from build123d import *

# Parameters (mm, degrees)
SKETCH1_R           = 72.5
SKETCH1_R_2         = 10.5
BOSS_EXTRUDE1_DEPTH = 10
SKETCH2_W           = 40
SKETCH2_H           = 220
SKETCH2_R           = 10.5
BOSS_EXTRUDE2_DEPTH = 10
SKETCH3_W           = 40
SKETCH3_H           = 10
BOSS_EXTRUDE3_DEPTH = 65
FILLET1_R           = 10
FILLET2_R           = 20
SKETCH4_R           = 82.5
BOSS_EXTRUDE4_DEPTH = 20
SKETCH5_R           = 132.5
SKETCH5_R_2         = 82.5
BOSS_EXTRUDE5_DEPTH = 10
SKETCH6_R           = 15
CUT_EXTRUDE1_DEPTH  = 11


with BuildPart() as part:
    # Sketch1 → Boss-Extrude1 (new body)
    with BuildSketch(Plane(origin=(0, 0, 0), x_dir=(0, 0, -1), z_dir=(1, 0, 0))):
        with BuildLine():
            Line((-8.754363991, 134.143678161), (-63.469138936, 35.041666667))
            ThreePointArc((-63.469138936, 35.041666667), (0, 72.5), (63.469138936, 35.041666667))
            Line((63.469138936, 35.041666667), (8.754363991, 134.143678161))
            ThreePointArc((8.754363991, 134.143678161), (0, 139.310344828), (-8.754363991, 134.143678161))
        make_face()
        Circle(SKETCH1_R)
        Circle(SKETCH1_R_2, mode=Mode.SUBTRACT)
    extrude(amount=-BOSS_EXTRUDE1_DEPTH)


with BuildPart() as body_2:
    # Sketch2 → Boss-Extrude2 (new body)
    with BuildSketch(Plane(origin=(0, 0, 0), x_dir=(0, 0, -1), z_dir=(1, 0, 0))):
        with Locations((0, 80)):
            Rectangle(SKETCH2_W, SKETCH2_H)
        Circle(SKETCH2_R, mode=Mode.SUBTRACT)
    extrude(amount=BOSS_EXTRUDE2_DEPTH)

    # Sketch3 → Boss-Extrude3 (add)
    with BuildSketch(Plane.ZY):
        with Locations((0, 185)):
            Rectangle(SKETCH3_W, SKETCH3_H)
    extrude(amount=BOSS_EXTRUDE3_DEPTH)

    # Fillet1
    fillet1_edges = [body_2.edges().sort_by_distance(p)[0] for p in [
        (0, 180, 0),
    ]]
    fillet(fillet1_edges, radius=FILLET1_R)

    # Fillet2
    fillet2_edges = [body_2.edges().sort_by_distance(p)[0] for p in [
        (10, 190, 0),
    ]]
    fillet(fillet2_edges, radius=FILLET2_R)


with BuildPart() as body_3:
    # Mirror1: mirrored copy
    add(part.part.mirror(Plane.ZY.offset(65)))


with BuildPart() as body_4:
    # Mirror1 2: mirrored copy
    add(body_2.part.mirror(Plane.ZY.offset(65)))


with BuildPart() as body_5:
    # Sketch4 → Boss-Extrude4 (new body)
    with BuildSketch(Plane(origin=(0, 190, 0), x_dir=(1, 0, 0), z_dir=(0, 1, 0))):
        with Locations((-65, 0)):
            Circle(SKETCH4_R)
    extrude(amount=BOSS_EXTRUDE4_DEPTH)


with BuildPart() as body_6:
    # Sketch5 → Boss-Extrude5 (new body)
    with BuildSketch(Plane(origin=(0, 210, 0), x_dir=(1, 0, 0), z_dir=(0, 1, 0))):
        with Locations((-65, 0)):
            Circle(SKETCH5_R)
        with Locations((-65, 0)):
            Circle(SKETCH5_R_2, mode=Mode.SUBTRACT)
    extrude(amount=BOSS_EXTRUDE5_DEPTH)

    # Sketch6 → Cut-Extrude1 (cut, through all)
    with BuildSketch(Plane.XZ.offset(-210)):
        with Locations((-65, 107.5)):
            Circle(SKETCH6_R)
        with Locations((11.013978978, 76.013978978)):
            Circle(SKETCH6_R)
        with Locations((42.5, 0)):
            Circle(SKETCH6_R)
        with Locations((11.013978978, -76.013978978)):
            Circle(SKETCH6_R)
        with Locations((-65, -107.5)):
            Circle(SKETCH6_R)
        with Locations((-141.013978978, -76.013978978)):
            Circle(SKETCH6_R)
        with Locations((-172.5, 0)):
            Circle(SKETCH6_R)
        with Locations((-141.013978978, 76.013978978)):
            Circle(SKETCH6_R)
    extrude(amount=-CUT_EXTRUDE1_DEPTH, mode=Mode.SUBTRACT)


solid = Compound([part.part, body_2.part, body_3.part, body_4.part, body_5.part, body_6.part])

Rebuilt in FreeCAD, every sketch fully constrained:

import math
import FreeCAD as App
import Part
import Sketcher
Q = App.Units.Quantity


def edges_at(feature, points):
    """Names of the edges that pass closest to the given points."""
    edges = feature.Shape.Edges
    near = lambda p: min(range(len(edges)), key=lambda i: edges[i].distToShape(Part.Vertex(*p))[0])
    return sorted({f"Edge{near(p) + 1}" for p in points})


def add_polygon(sketch, points):
    """Adds a closed chain of lines whose ends are joined by coincident constraints."""
    first, n = sketch.GeometryCount, len(points)
    for a, b in zip(points, points[1:] + points[:1]):
        sketch.addGeometry(Part.LineSegment(App.Vector(*a, 0), App.Vector(*b, 0)), False)
    for i in range(n):
        sketch.addConstraint(Sketcher.Constraint("Coincident", first + i, 2, first + (i + 1) % n, 1))

doc = App.newDocument("Part")
params = doc.addObject("Spreadsheet::Sheet", "Params")
for row, (alias, value) in enumerate([
    ("sketch1_diameter", "21 mm"),
    ("sketch1_radius", "10 mm"),
    ("sketch1_radius2", "72.5 mm"),
    ("pad1_length", "10 mm"),
    ("sketch2_diameter", "21 mm"),
    ("sketch2_width", "220 mm"),
    ("sketch2_height", "40 mm"),
    ("pad2_length", "10 mm"),
    ("sketch3_width", "10 mm"),
    ("sketch3_height", "40 mm"),
    ("pad3_length", "65 mm"),
    ("fillet_radius", "10 mm"),
    ("fillet2_radius", "20 mm"),
    ("sketch4_diameter", "165 mm"),
    ("pad4_length", "20 mm"),
    ("sketch5_diameter", "265 mm"),
    ("sketch5_diameter2", "165 mm"),
    ("pad5_length", "10 mm"),
    ("sketch6_diameter", "30 mm"),
], start=1):
    params.set(f"A{row}", alias)
    params.set(f"B{row}", "=" + value)
    params.setAlias(f"B{row}", alias)

body = doc.addObject("PartDesign::Body", "Body")

# Sketch on YZ plane
sketch1 = body.newObject("Sketcher::SketchObject", "Sketch")
sketch1.AttachmentSupport = (doc.getObject("YZ_Plane"), [""])
sketch1.MapMode = "FlatFace"
sketch1.addGeometry([
    Part.LineSegment(App.Vector(134, 9, 0), App.Vector(35, 63, 0)),  # 0
    Part.ArcOfCircle(Part.Circle(App.Vector(0, 0, 0), App.Vector(0, 0, 1), 72), math.radians(61), math.radians(299)),  # 1
    Part.LineSegment(App.Vector(35, -63, 0), App.Vector(134, -9, 0)),  # 2
    Part.ArcOfCircle(Part.Circle(App.Vector(129, 0, 0), App.Vector(0, 0, 1), 10), math.radians(-61), math.radians(61)),  # 3
    Part.Circle(App.Vector(0, 0, 0), App.Vector(0, 0, 1), 10),  # 4
], False)
sketch1.addConstraint([
    Sketcher.Constraint("Tangent", 0, 2, 1, 1),
    Sketcher.Constraint("Tangent", 1, 2, 2, 1),
    Sketcher.Constraint("Tangent", 2, 2, 3, 1),
    Sketcher.Constraint("Tangent", 3, 2, 0, 1),
    Sketcher.Constraint("Coincident", 1, 3, -1, 1),
    Sketcher.Constraint("Coincident", 4, 3, -1, 1),
    Sketcher.Constraint("PointOnObject", 3, 3, -1),
    Sketcher.Constraint("Diameter", 4, Q("21 mm")),
    Sketcher.Constraint("Radius", 3, Q("10 mm")),
    Sketcher.Constraint("Radius", 1, Q("72.5 mm")),
    Sketcher.Constraint("DistanceY", -1, 1, 0, 2, Q("63.469139 mm")),
])
sketch1.setExpression("Constraints[7]", "Params.sketch1_diameter")
sketch1.setExpression("Constraints[8]", "Params.sketch1_radius")
sketch1.setExpression("Constraints[9]", "Params.sketch1_radius2")
pad1 = body.newObject("PartDesign::Pad", "Pad")
pad1.Profile = sketch1
pad1.setExpression("Length", "Params.pad1_length")
pad1.Reversed = True
body2 = doc.addObject("PartDesign::Body", "Body001")

# Sketch on YZ plane
sketch2 = body2.newObject("Sketcher::SketchObject", "Sketch001")
sketch2.AttachmentSupport = (doc.getObject("YZ_Plane001"), [""])
sketch2.MapMode = "FlatFace"
add_polygon(sketch2, [(190, 20), (-30, 20), (-30, -20), (190, -20)])  # lines 0-3
sketch2.addGeometry(Part.Circle(App.Vector(0, 0, 0), App.Vector(0, 0, 1), 10), False)  # 4
sketch2.addConstraint([
    Sketcher.Constraint("Horizontal", 0),
    Sketcher.Constraint("Vertical", 1),
    Sketcher.Constraint("Horizontal", 2),
    Sketcher.Constraint("Vertical", 3),
    Sketcher.Constraint("Coincident", 4, 3, -1, 1),
    Sketcher.Constraint("Diameter", 4, Q("21 mm")),
    Sketcher.Constraint("DistanceX", 0, 2, 0, 1, Q("220 mm")),
    Sketcher.Constraint("DistanceY", 1, 2, 1, 1, Q("40 mm")),
    Sketcher.Constraint("DistanceX", 0, 2, -1, 1, Q("30 mm")),
    Sketcher.Constraint("DistanceY", -1, 1, 0, 2, Q("20 mm")),
])
sketch2.setExpression("Constraints[9]", "Params.sketch2_diameter")
sketch2.setExpression("Constraints[10]", "Params.sketch2_width")
sketch2.setExpression("Constraints[11]", "Params.sketch2_height")
pad2 = body2.newObject("PartDesign::Pad", "Pad001")
pad2.Profile = sketch2
pad2.setExpression("Length", "Params.pad2_length")

# Sketch on YZ plane
sketch3 = body2.newObject("Sketcher::SketchObject", "Sketch002")
sketch3.AttachmentSupport = (doc.getObject("YZ_Plane001"), [""])
sketch3.MapMode = "FlatFace"
add_polygon(sketch3, [(190, -20), (180, -20), (180, 20), (190, 20)])  # lines 0-3
sketch3.addConstraint([
    Sketcher.Constraint("Horizontal", 0),
    Sketcher.Constraint("Vertical", 1),
    Sketcher.Constraint("Horizontal", 2),
    Sketcher.Constraint("Vertical", 3),
    Sketcher.Constraint("DistanceX", 0, 2, 0, 1, Q("10 mm")),
    Sketcher.Constraint("DistanceY", 1, 1, 1, 2, Q("40 mm")),
    Sketcher.Constraint("DistanceX", -1, 1, 0, 2, Q("180 mm")),
    Sketcher.Constraint("DistanceY", 0, 2, -1, 1, Q("20 mm")),
])
sketch3.setExpression("Constraints[8]", "Params.sketch3_width")
sketch3.setExpression("Constraints[9]", "Params.sketch3_height")
pad3 = body2.newObject("PartDesign::Pad", "Pad002")
pad3.Profile = sketch3
pad3.setExpression("Length", "Params.pad3_length")
pad3.Reversed = True
doc.recompute()

fillet = body2.newObject("PartDesign::Fillet", "Fillet")
fillet.Base = (pad3, edges_at(pad3, [(0, 180, 0)]))
fillet.setExpression("Radius", "Params.fillet_radius")
doc.recompute()

fillet2 = body2.newObject("PartDesign::Fillet", "Fillet001")
fillet2.Base = (fillet, edges_at(fillet, [(10, 190, 0)]))
fillet2.setExpression("Radius", "Params.fillet2_radius")
body3 = doc.addObject("PartDesign::Body", "Body002")
doc.recompute()

mirroring = doc.addObject("Part::Mirroring", "Mirroring")
mirroring.Source = body
mirroring.Base = App.Vector(-65, 0, 0)
mirroring.Normal = App.Vector(-1, 0, 0)
body3.BaseFeature = mirroring
doc.recompute()
body4 = doc.addObject("PartDesign::Body", "Body003")
doc.recompute()

mirroring2 = doc.addObject("Part::Mirroring", "Mirroring001")
mirroring2.Source = body2
mirroring2.Base = App.Vector(-65, 0, 0)
mirroring2.Normal = App.Vector(-1, 0, 0)
body4.BaseFeature = mirroring2
doc.recompute()
body5 = doc.addObject("PartDesign::Body", "Body004")

# Sketch on XZ plane
sketch4 = body5.newObject("Sketcher::SketchObject", "Sketch003")
sketch4.AttachmentSupport = (doc.getObject("XZ_Plane004"), [""])
sketch4.MapMode = "FlatFace"
sketch4.AttachmentOffset = App.Placement(App.Vector(0, 0, -190), App.Rotation())
sketch4.addGeometry(Part.Circle(App.Vector(-65, 0, 0), App.Vector(0, 0, 1), 82), False)
sketch4.addConstraint([
    Sketcher.Constraint("PointOnObject", 0, 3, -1),
    Sketcher.Constraint("Diameter", 0, Q("165 mm")),
    Sketcher.Constraint("DistanceX", 0, 3, -1, 1, Q("65 mm")),
])
sketch4.setExpression("Constraints[1]", "Params.sketch4_diameter")
pad4 = body5.newObject("PartDesign::Pad", "Pad003")
pad4.Profile = sketch4
pad4.setExpression("Length", "Params.pad4_length")
pad4.Reversed = True
body6 = doc.addObject("PartDesign::Body", "Body005")

# Sketch on XZ plane
sketch5 = body6.newObject("Sketcher::SketchObject", "Sketch004")
sketch5.AttachmentSupport = (doc.getObject("XZ_Plane005"), [""])
sketch5.MapMode = "FlatFace"
sketch5.AttachmentOffset = App.Placement(App.Vector(0, 0, -210), App.Rotation())
sketch5.addGeometry([
    Part.Circle(App.Vector(-65, 0, 0), App.Vector(0, 0, 1), 132),
    Part.Circle(App.Vector(-65, 0, 0), App.Vector(0, 0, 1), 82),
], False)
sketch5.addConstraint([
    Sketcher.Constraint("Coincident", 1, 3, 0, 3),
    Sketcher.Constraint("PointOnObject", 0, 3, -1),
    Sketcher.Constraint("Diameter", 0, Q("265 mm")),
    Sketcher.Constraint("Diameter", 1, Q("165 mm")),
    Sketcher.Constraint("DistanceX", 0, 3, -1, 1, Q("65 mm")),
])
sketch5.setExpression("Constraints[2]", "Params.sketch5_diameter")
sketch5.setExpression("Constraints[3]", "Params.sketch5_diameter2")
pad5 = body6.newObject("PartDesign::Pad", "Pad004")
pad5.Profile = sketch5
pad5.setExpression("Length", "Params.pad5_length")
pad5.Reversed = True

# Sketch on XZ plane
sketch6 = body6.newObject("Sketcher::SketchObject", "Sketch005")
sketch6.AttachmentSupport = (doc.getObject("XZ_Plane005"), [""])
sketch6.MapMode = "FlatFace"
sketch6.AttachmentOffset = App.Placement(App.Vector(0, 0, -210), App.Rotation())
sketch6.addGeometry([
    Part.Circle(App.Vector(-65, 108, 0), App.Vector(0, 0, 1), 15),  # 0
    Part.Circle(App.Vector(11, 76, 0), App.Vector(0, 0, 1), 15),  # 1
    Part.Circle(App.Vector(42, 0, 0), App.Vector(0, 0, 1), 15),  # 2
    Part.Circle(App.Vector(11, -76, 0), App.Vector(0, 0, 1), 15),  # 3
    Part.Circle(App.Vector(-65, -108, 0), App.Vector(0, 0, 1), 15),  # 4
    Part.Circle(App.Vector(-141, -76, 0), App.Vector(0, 0, 1), 15),  # 5
    Part.Circle(App.Vector(-172, 0, 0), App.Vector(0, 0, 1), 15),  # 6
    Part.Circle(App.Vector(-141, 76, 0), App.Vector(0, 0, 1), 15),  # 7
], False)
sketch6.addConstraint([
    Sketcher.Constraint("Equal", 0, 1),
    Sketcher.Constraint("Equal", 1, 2),
    Sketcher.Constraint("Equal", 2, 3),
    Sketcher.Constraint("Equal", 3, 4),
    Sketcher.Constraint("Equal", 4, 5),
    Sketcher.Constraint("Equal", 5, 6),
    Sketcher.Constraint("Equal", 6, 7),
    Sketcher.Constraint("Symmetric", 1, 3, 3, 3, -1),
    Sketcher.Constraint("Symmetric", 0, 3, 4, 3, -1),
    Sketcher.Constraint("Symmetric", 5, 3, 7, 3, -1),
    Sketcher.Constraint("PointOnObject", 2, 3, -1),
    Sketcher.Constraint("PointOnObject", 6, 3, -1),
    Sketcher.Constraint("Horizontal", 3, 3, 5, 3),
    Sketcher.Constraint("Diameter", 0, Q("30 mm")),
    Sketcher.Constraint("DistanceX", 0, 3, -1, 1, Q("65 mm")),
    Sketcher.Constraint("DistanceY", 4, 3, 0, 3, Q("215 mm")),
    Sketcher.Constraint("DistanceX", -1, 1, 2, 3, Q("42.5 mm")),
    Sketcher.Constraint("DistanceX", 6, 3, -1, 1, Q("172.5 mm")),
    Sketcher.Constraint("DistanceX", -1, 1, 1, 3, Q("11.013979 mm")),
    Sketcher.Constraint("DistanceY", -1, 1, 1, 3, Q("76.013979 mm")),
    Sketcher.Constraint("DistanceX", 5, 3, -1, 1, Q("141.013979 mm")),
])
sketch6.setExpression("Constraints[13]", "Params.sketch6_diameter")
pocket1 = body6.newObject("PartDesign::Pocket", "Pocket")
pocket1.Profile = sketch6
pocket1.Type = "ThroughAll"
mirroring.Visibility = False
mirroring2.Visibility = False

doc.recompute()
